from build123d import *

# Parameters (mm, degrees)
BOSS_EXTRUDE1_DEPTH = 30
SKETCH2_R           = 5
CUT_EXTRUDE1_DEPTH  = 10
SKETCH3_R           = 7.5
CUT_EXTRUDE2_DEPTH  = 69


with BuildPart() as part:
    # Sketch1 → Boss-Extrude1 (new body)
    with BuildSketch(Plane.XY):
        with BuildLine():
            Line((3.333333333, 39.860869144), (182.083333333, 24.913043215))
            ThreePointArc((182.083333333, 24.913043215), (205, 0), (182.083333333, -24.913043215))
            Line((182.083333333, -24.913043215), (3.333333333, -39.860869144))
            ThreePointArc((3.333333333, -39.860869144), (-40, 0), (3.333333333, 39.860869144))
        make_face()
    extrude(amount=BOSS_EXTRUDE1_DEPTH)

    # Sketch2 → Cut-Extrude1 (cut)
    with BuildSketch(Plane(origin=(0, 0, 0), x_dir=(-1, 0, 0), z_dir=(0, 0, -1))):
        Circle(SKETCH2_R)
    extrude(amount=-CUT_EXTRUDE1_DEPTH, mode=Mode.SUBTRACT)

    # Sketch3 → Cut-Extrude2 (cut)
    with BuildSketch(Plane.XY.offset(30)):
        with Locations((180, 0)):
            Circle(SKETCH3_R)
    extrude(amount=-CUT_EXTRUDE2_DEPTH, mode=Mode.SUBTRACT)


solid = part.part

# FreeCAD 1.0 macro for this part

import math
import FreeCAD as App
import Part
import Sketcher
Q = App.Units.Quantity

doc = App.newDocument("Part")
body = doc.addObject("PartDesign::Body", "Body")

# Sketch on XY plane
sketch1 = body.newObject("Sketcher::SketchObject", "Sketch")
sketch1.AttachmentSupport = (doc.getObject("XY_Plane"), [""])
sketch1.MapMode = "FlatFace"
sketch1.addGeometry([
    Part.LineSegment(App.Vector(182, 25, 0), App.Vector(3, 40, 0)),
    Part.ArcOfCircle(Part.Circle(App.Vector(0, 0, 0), App.Vector(0, 0, 1), 40), math.radians(85), math.radians(275)),
    Part.LineSegment(App.Vector(3, -40, 0), App.Vector(182, -25, 0)),
    Part.ArcOfCircle(Part.Circle(App.Vector(180, 0, 0), App.Vector(0, 0, 1), 25), math.radians(-85), math.radians(85)),
], False)
sketch1.addConstraint([
    Sketcher.Constraint("Tangent", 0, 2, 1, 1),
    Sketcher.Constraint("Tangent", 1, 2, 2, 1),
    Sketcher.Constraint("Tangent", 2, 2, 3, 1),
    Sketcher.Constraint("Tangent", 3, 2, 0, 1),
    Sketcher.Constraint("Coincident", 1, 3, -1, 1),
    Sketcher.Constraint("PointOnObject", 3, 3, -1),
    Sketcher.Constraint("Radius", 1, Q("40 mm")),
    Sketcher.Constraint("Radius", 3, Q("25 mm")),
    Sketcher.Constraint("DistanceX", -1, 1, 3, 3, Q("180 mm")),
])
pad1 = body.newObject("PartDesign::Pad", "Pad")
pad1.Profile = sketch1
pad1.Length = 30

# Sketch on XY plane
sketch2 = body.newObject("Sketcher::SketchObject", "Sketch001")
sketch2.AttachmentSupport = (doc.getObject("XY_Plane"), [""])
sketch2.MapMode = "FlatFace"
sketch2.addGeometry(Part.Circle(App.Vector(0, 0, 0), App.Vector(0, 0, 1), 5), False)
sketch2.addConstraint([
    Sketcher.Constraint("Coincident", 0, 3, -1, 1),
    Sketcher.Constraint("Diameter", 0, Q("10 mm")),
])
pocket1 = body.newObject("PartDesign::Pocket", "Pocket")
pocket1.Profile = sketch2
pocket1.Length = 10
pocket1.Reversed = True

# Sketch on XY plane
sketch3 = body.newObject("Sketcher::SketchObject", "Sketch002")
sketch3.AttachmentSupport = (doc.getObject("XY_Plane"), [""])
sketch3.MapMode = "FlatFace"
sketch3.AttachmentOffset = App.Placement(App.Vector(0, 0, 30), App.Rotation())
sketch3.addGeometry(Part.Circle(App.Vector(180, 0, 0), App.Vector(0, 0, 1), 8), False)
sketch3.addConstraint([
    Sketcher.Constraint("PointOnObject", 0, 3, -1),
    Sketcher.Constraint("Diameter", 0, Q("15 mm")),
    Sketcher.Constraint("DistanceX", -1, 1, 0, 3, Q("180 mm")),
])
pocket2 = body.newObject("PartDesign::Pocket", "Pocket001")
pocket2.Profile = sketch3
pocket2.Length = 69

doc.recompute()
